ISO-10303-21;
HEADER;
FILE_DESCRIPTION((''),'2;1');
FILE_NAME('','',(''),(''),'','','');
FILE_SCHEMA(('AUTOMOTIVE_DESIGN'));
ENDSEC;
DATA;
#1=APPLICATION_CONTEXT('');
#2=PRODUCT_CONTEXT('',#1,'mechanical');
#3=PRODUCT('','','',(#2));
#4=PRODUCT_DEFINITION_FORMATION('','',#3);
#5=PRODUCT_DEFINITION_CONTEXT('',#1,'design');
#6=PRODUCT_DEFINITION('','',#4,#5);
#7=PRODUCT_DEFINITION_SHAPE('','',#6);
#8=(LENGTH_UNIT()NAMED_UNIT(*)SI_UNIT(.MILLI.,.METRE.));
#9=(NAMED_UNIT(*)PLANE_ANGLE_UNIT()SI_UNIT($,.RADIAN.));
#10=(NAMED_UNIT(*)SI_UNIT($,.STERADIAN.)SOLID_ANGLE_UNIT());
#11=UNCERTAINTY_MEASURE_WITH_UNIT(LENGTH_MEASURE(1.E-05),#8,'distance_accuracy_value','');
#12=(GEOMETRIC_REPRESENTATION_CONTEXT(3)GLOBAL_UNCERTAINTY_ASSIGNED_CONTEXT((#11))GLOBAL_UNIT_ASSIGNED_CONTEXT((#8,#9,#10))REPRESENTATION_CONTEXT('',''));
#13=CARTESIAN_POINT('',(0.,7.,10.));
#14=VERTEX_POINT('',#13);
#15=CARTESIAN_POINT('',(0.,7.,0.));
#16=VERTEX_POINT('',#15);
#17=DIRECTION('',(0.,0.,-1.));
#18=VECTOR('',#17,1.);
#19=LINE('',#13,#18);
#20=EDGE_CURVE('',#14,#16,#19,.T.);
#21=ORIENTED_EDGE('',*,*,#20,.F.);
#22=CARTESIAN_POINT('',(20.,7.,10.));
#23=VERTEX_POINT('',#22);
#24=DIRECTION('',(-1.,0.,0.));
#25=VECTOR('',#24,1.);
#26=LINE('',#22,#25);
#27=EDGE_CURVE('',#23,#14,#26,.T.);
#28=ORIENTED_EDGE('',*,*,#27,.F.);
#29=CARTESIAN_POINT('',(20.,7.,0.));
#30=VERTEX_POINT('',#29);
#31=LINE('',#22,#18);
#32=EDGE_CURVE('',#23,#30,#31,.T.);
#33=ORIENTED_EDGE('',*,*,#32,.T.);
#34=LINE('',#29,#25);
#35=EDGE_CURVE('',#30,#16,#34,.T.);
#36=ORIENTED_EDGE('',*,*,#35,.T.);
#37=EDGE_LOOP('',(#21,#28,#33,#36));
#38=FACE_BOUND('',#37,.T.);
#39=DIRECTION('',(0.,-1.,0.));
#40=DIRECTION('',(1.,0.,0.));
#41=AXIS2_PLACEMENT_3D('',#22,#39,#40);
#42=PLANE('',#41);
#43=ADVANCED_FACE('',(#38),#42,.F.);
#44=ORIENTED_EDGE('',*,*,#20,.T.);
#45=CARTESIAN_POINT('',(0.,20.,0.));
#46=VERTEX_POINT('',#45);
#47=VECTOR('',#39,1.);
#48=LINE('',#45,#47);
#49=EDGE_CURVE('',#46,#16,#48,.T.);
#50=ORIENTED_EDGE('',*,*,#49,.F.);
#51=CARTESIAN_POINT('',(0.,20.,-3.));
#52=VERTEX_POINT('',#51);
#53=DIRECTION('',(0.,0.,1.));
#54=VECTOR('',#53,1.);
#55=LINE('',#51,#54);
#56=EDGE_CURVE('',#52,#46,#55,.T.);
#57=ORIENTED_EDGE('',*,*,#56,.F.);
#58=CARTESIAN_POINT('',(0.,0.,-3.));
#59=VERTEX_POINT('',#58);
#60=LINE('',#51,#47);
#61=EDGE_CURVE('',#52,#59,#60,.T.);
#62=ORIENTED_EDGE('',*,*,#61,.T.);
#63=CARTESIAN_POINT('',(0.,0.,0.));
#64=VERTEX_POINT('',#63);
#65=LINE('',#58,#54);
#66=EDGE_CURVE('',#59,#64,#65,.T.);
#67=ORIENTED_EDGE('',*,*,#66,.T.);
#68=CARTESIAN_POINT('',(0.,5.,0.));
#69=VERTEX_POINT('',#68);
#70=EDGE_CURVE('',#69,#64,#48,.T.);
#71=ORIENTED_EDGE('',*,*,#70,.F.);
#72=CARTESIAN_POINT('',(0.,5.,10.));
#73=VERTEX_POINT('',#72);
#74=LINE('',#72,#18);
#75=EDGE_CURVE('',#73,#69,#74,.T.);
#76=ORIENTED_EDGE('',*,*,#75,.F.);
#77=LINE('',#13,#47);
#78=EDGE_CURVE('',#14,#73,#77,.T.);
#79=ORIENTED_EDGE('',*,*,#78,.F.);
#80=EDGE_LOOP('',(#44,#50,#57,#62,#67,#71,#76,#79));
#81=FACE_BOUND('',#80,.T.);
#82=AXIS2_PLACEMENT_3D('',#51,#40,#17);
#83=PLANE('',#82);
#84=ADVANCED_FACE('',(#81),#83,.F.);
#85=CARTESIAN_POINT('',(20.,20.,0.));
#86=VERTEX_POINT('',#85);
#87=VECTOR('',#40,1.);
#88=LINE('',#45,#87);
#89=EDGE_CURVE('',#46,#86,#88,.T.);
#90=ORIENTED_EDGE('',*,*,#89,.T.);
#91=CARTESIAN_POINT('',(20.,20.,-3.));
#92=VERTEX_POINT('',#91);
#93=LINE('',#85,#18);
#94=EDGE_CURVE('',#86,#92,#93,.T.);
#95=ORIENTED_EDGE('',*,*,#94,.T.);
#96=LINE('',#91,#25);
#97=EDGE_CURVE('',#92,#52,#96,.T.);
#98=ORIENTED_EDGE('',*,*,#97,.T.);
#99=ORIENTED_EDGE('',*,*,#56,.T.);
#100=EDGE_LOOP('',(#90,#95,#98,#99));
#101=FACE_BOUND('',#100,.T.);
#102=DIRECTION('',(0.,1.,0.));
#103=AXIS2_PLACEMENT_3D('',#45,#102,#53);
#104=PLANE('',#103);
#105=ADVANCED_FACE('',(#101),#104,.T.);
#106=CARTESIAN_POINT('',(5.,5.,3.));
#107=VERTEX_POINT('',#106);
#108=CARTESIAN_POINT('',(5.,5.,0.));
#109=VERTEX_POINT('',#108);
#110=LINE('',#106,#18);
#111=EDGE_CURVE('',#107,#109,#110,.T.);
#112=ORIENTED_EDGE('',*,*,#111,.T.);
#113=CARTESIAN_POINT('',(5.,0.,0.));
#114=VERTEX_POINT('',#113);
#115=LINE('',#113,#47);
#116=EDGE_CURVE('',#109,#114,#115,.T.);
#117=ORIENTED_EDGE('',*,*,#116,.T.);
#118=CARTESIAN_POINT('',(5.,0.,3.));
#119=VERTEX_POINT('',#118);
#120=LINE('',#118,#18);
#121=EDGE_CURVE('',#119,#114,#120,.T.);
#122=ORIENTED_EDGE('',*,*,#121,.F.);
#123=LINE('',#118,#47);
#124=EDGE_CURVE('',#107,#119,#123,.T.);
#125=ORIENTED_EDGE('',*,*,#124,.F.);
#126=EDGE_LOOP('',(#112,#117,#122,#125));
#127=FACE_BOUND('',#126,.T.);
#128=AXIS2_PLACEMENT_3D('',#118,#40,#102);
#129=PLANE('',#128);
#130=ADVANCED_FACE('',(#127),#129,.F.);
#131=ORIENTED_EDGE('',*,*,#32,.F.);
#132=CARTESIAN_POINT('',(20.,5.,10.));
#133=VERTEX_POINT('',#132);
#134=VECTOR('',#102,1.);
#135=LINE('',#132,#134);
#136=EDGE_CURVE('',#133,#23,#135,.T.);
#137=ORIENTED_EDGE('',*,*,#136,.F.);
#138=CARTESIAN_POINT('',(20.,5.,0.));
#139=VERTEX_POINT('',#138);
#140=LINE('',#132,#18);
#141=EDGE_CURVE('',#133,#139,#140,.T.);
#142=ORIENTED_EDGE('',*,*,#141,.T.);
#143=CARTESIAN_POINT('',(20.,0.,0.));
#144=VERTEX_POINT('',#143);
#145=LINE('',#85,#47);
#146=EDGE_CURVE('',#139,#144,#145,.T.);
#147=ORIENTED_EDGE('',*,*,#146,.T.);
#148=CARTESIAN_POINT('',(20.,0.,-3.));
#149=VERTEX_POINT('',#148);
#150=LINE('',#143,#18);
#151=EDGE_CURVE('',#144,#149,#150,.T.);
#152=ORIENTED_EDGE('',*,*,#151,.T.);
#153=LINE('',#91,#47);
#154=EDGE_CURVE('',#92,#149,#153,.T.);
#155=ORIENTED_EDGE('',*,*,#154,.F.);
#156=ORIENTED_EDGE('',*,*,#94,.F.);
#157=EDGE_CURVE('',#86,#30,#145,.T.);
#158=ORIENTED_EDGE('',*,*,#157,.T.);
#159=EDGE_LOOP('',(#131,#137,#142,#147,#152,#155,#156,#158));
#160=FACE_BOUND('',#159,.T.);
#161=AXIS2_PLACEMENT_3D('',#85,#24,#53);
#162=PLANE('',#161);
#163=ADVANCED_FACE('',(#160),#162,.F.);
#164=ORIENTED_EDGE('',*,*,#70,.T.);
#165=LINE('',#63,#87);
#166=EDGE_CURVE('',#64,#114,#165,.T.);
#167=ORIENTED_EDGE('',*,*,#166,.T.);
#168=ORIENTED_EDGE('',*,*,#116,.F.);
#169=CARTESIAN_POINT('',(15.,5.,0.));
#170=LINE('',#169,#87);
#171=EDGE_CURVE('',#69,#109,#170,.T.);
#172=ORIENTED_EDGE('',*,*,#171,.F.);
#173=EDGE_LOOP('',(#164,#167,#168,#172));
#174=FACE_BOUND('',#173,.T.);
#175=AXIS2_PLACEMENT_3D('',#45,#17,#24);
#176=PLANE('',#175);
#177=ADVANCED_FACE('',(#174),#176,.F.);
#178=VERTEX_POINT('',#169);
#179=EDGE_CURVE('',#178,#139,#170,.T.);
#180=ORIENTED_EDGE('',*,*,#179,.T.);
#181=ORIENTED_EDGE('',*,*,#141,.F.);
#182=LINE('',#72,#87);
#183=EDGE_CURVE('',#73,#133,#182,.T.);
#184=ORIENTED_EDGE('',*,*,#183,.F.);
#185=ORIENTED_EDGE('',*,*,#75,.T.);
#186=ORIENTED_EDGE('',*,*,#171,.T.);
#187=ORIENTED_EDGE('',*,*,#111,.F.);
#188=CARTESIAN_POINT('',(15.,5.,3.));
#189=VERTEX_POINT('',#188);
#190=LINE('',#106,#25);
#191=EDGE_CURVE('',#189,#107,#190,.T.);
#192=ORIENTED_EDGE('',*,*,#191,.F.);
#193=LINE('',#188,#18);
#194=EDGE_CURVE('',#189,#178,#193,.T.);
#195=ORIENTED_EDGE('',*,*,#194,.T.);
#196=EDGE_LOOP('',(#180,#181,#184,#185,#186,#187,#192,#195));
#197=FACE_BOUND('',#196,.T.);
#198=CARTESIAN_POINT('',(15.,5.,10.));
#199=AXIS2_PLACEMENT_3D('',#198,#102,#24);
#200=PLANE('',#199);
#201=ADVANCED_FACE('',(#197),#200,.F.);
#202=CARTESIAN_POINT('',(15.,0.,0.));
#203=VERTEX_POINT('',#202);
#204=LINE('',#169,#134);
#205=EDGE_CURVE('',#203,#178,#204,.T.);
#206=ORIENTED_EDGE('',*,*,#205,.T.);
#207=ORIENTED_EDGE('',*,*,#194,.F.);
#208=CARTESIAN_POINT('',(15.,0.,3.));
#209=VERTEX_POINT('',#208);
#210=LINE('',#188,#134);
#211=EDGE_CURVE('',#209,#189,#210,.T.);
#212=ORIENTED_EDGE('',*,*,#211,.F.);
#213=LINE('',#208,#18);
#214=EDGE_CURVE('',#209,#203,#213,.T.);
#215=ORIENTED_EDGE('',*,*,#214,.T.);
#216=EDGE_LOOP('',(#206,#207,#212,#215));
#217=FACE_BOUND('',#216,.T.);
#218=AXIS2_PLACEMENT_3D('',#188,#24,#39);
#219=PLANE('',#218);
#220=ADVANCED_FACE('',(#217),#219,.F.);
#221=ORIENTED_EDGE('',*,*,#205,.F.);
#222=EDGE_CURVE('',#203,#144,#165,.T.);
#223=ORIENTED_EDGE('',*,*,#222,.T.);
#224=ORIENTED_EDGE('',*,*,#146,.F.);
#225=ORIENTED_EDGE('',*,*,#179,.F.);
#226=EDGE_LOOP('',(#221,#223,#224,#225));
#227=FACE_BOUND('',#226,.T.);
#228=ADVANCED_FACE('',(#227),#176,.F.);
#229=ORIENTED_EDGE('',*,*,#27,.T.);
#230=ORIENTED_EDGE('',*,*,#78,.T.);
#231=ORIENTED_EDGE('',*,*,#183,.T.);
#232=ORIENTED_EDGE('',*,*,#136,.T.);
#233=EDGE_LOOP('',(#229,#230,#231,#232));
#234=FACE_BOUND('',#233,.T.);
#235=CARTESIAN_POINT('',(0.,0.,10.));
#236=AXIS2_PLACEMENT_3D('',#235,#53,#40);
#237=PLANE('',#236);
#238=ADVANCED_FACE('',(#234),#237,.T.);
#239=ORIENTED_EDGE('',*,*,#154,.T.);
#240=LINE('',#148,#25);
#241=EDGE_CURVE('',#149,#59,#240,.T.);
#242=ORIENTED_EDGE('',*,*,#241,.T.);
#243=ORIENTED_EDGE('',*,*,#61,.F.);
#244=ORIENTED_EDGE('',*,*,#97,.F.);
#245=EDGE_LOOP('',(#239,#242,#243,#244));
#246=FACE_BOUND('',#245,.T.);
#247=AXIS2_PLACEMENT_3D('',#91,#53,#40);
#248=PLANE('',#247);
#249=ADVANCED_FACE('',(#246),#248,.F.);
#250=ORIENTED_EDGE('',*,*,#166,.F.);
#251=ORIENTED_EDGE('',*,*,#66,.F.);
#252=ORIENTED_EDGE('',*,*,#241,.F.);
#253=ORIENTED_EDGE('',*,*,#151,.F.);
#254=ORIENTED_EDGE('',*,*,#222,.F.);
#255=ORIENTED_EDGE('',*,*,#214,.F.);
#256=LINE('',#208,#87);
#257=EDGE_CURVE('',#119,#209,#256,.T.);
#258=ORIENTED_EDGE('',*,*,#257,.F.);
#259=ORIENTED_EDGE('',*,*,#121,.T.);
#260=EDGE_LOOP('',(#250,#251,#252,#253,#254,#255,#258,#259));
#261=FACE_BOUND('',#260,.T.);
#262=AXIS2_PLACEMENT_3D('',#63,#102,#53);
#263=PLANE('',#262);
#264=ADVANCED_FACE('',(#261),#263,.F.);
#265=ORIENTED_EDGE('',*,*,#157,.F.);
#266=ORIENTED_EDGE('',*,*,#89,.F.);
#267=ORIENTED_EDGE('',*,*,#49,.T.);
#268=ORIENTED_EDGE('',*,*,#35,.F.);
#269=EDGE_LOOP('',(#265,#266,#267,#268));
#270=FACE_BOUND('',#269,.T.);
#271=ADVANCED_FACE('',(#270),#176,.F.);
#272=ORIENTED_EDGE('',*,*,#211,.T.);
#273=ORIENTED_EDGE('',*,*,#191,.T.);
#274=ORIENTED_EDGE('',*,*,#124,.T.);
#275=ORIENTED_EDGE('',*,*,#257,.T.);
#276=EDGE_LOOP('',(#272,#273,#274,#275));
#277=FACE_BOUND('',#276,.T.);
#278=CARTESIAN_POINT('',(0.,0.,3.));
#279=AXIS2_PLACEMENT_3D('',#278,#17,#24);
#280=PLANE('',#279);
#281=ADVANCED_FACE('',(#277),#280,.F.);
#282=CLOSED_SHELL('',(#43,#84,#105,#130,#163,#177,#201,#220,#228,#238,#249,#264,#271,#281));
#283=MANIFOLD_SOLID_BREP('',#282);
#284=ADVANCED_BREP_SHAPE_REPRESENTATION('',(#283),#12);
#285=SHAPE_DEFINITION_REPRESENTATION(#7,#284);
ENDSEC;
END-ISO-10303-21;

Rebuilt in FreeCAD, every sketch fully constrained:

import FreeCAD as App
import Part
import Sketcher
Q = App.Units.Quantity


def add_polygon(sketch, points):
    """Adds a closed chain of lines whose ends are joined by coincident constraints."""
    first, n = sketch.GeometryCount, len(points)
    for a, b in zip(points, points[1:] + points[:1]):
        sketch.addGeometry(Part.LineSegment(App.Vector(*a, 0), App.Vector(*b, 0)), False)
    for i in range(n):
        sketch.addConstraint(Sketcher.Constraint("Coincident", first + i, 2, first + (i + 1) % n, 1))

doc = App.newDocument("Part")
params = doc.addObject("Spreadsheet::Sheet", "Params")
for row, (alias, value) in enumerate([
    ("sketch1_width", "20 mm"),
    ("sketch1_height", "3 mm"),
    ("pad1_length", "20 mm"),
    ("sketch2_width", "10 mm"),
    ("sketch2_height", "5 mm"),
    ("pad2_length", "3 mm"),
    ("sketch3_width", "20 mm"),
    ("sketch3_height", "2 mm"),
    ("pad3_length", "10 mm"),
], start=1):
    params.set(f"A{row}", alias)
    params.set(f"B{row}", "=" + value)
    params.setAlias(f"B{row}", alias)

body = doc.addObject("PartDesign::Body", "Body")

# Sketch on XZ plane
sketch1 = body.newObject("Sketcher::SketchObject", "Sketch")
sketch1.AttachmentSupport = (doc.getObject("XZ_Plane"), [""])
sketch1.MapMode = "FlatFace"
add_polygon(sketch1, [(0, -3), (0, 0), (20, 0), (20, -3)])  # lines 0-3
sketch1.addConstraint([
    Sketcher.Constraint("Vertical", 0),
    Sketcher.Constraint("Horizontal", 1),
    Sketcher.Constraint("Vertical", 2),
    Sketcher.Constraint("Horizontal", 3),
    Sketcher.Constraint("Coincident", 0, 2, -1, 1),
    Sketcher.Constraint("DistanceX", 1, 1, 1, 2, Q("20 mm")),
    Sketcher.Constraint("DistanceY", 0, 1, 0, 2, Q("3 mm")),
])
sketch1.setExpression("Constraints[9]", "Params.sketch1_width")
sketch1.setExpression("Constraints[10]", "Params.sketch1_height")
pad1 = body.newObject("PartDesign::Pad", "Pad")
pad1.Profile = sketch1
pad1.setExpression("Length", "Params.pad1_length")
pad1.Reversed = True

# Sketch on XY plane
sketch2 = body.newObject("Sketcher::SketchObject", "Sketch001")
sketch2.AttachmentSupport = (doc.getObject("XY_Plane"), [""])
sketch2.MapMode = "FlatFace"
add_polygon(sketch2, [(5, 5), (5, 0), (15, 0), (15, 5)])  # lines 0-3
sketch2.addConstraint([
    Sketcher.Constraint("Vertical", 0),
    Sketcher.Constraint("Horizontal", 1),
    Sketcher.Constraint("Vertical", 2),
    Sketcher.Constraint("Horizontal", 3),
    Sketcher.Constraint("PointOnObject", 0, 2, -1),
    Sketcher.Constraint("DistanceX", 1, 1, 1, 2, Q("10 mm")),
    Sketcher.Constraint("DistanceY", 0, 2, 0, 1, Q("5 mm")),
    Sketcher.Constraint("DistanceX", -1, 1, 0, 2, Q("5 mm")),
])
sketch2.setExpression("Constraints[9]", "Params.sketch2_width")
sketch2.setExpression("Constraints[10]", "Params.sketch2_height")
pad2 = body.newObject("PartDesign::Pad", "Pad001")
pad2.Profile = sketch2
pad2.setExpression("Length", "Params.pad2_length")

# Sketch on XY plane
sketch3 = body.newObject("Sketcher::SketchObject", "Sketch002")
sketch3.AttachmentSupport = (doc.getObject("XY_Plane"), [""])
sketch3.MapMode = "FlatFace"
add_polygon(sketch3, [(20, 5), (20, 7), (0, 7), (0, 5)])  # lines 0-3
sketch3.addConstraint([
    Sketcher.Constraint("Vertical", 0),
    Sketcher.Constraint("Horizontal", 1),
    Sketcher.Constraint("Vertical", 2),
    Sketcher.Constraint("Horizontal", 3),
    Sketcher.Constraint("PointOnObject", 1, 2, -2),
    Sketcher.Constraint("DistanceX", 1, 2, 1, 1, Q("20 mm")),
    Sketcher.Constraint("DistanceY", 0, 1, 0, 2, Q("2 mm")),
    Sketcher.Constraint("DistanceY", -1, 1, 0, 2, Q("7 mm")),
])
sketch3.setExpression("Constraints[9]", "Params.sketch3_width")
sketch3.setExpression("Constraints[10]", "Params.sketch3_height")
pad3 = body.newObject("PartDesign::Pad", "Pad002")
pad3.Profile = sketch3
pad3.setExpression("Length", "Params.pad3_length")

doc.recompute()
